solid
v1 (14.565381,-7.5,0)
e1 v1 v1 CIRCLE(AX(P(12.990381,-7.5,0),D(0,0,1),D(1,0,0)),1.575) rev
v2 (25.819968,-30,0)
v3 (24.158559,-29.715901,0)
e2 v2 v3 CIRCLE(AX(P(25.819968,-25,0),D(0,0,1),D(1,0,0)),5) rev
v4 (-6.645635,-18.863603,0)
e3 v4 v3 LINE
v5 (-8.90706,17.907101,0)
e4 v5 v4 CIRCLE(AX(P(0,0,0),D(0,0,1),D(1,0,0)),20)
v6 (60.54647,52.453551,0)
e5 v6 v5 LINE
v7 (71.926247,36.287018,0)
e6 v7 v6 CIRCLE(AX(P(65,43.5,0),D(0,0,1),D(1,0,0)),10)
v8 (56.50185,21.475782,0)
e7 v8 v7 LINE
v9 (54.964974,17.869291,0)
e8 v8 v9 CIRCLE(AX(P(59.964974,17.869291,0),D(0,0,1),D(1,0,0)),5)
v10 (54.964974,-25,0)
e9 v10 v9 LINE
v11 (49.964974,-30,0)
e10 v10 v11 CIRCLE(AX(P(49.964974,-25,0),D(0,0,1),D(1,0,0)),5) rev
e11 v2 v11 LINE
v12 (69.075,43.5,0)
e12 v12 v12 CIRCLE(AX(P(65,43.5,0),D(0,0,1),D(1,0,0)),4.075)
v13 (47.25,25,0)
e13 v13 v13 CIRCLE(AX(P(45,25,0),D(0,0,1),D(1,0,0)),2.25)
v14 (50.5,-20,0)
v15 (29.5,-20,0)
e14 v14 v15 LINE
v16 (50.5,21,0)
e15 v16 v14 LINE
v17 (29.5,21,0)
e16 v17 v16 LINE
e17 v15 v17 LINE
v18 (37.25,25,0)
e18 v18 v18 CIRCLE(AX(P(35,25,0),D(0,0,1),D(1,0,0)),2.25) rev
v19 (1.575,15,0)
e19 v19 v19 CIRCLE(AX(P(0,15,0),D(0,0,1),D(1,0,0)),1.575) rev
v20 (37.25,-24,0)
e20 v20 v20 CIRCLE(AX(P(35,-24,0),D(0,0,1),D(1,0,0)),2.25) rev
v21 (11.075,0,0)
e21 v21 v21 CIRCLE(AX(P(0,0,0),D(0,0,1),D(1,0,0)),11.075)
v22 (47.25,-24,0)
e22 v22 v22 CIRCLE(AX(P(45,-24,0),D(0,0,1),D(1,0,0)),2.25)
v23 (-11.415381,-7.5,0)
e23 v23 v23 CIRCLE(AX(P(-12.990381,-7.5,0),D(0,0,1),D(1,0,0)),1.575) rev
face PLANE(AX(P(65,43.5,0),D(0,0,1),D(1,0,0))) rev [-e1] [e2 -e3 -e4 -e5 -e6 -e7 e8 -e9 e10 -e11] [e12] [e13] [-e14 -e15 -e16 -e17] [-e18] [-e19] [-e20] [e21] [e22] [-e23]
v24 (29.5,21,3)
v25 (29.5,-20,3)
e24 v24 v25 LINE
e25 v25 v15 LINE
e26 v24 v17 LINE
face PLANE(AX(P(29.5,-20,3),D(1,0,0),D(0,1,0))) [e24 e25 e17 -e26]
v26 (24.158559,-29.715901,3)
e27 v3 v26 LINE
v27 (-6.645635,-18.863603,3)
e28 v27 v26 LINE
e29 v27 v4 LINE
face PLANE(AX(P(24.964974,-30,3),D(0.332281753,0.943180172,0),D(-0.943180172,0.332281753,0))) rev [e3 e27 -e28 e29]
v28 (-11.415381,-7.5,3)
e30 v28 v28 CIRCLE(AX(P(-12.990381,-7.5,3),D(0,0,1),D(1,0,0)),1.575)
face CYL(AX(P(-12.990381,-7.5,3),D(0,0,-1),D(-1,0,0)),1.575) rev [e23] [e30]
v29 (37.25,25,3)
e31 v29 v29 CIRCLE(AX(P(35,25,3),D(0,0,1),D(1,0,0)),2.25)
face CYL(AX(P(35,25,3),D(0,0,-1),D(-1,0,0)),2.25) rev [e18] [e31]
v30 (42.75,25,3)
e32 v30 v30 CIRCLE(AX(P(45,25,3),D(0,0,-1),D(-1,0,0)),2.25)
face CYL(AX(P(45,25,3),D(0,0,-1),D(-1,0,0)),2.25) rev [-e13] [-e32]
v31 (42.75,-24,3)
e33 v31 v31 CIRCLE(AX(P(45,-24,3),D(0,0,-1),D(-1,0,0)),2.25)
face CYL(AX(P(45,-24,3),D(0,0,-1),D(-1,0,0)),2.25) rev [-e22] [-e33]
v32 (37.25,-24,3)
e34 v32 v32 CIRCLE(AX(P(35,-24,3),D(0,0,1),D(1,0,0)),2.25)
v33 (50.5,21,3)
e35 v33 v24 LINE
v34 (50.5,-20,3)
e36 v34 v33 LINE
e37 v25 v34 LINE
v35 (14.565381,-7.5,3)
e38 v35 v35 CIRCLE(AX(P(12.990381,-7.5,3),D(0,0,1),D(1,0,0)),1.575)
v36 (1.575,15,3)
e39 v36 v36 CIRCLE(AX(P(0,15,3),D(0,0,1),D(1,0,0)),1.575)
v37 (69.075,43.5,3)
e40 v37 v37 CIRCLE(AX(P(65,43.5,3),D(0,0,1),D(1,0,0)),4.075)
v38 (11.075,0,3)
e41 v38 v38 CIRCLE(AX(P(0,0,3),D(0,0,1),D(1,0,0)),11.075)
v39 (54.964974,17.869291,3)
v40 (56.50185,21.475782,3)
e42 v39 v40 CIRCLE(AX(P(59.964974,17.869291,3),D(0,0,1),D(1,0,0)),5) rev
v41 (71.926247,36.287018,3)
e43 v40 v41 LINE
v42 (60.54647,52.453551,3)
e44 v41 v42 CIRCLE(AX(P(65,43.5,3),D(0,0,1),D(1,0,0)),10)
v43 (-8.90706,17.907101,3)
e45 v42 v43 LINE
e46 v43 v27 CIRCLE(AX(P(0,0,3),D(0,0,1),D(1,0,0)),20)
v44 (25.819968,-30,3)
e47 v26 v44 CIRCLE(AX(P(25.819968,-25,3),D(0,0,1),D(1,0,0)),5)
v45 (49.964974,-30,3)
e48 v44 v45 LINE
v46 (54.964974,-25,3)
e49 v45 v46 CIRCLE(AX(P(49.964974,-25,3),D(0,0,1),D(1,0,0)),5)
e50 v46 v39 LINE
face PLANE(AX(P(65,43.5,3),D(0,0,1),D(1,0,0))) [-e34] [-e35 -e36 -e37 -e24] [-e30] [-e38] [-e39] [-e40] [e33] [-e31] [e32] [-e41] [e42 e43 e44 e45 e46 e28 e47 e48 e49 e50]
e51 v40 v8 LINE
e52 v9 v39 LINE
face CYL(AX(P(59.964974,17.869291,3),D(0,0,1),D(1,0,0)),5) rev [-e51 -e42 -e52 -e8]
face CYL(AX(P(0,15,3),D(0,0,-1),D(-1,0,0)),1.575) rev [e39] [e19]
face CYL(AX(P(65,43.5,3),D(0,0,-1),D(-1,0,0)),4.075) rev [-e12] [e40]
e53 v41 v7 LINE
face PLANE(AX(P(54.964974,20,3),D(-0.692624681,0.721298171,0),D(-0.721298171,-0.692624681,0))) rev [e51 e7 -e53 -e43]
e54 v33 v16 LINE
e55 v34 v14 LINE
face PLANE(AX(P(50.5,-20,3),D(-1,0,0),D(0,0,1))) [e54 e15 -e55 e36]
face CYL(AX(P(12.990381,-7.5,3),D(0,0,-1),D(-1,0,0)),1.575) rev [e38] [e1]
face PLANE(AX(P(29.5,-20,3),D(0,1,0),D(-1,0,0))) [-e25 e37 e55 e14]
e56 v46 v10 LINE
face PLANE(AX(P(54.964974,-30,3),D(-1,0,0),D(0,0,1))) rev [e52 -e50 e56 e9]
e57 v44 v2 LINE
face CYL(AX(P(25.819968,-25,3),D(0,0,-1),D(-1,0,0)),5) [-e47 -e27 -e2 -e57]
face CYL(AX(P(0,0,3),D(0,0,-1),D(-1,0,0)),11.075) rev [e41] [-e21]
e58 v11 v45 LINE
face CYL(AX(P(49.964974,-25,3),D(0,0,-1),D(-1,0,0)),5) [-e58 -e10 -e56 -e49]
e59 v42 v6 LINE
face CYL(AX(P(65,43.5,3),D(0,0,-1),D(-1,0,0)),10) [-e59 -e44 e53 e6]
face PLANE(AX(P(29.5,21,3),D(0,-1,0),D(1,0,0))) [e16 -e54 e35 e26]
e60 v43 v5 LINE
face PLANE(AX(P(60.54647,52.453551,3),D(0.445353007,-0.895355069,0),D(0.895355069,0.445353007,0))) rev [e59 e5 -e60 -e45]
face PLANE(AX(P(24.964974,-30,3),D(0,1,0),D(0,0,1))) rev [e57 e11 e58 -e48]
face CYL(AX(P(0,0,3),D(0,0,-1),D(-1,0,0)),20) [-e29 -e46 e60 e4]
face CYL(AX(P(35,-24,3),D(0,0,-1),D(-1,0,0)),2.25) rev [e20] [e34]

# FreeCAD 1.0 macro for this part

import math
import FreeCAD as App
import Part
import Sketcher
from FreeCAD import Vector


def edges_at(feature, points):
    """Names of the edges that pass closest to the given points."""
    edges = feature.Shape.Edges
    near = lambda p: min(range(len(edges)), key=lambda i: edges[i].distToShape(Part.Vertex(*p))[0])
    return sorted({f"Edge{near(p) + 1}" for p in points})

doc = App.newDocument("Part")
body = doc.addObject("PartDesign::Body", "Body")

sketch1 = body.newObject("Sketcher::SketchObject", "Sketch")
sketch1.AttachmentSupport = (doc.getObject("XY_Plane"), [""])
sketch1.MapMode = "FlatFace"
sketch1.addGeometry(Part.LineSegment(Vector(-6.645635, -18.863603, 0), Vector(24.964974, -30, 0)), False)
sketch1.addGeometry(Part.LineSegment(Vector(24.964974, -30, 0), Vector(54.964974, -30, 0)), False)
sketch1.addGeometry(Part.LineSegment(Vector(54.964974, -30, 0), Vector(54.964974, 20, 0)), False)
sketch1.addGeometry(Part.LineSegment(Vector(54.964974, 20, 0), Vector(71.926247, 36.287018, 0)), False)
sketch1.addGeometry(Part.ArcOfCircle(Part.Circle(Vector(65, 43.5, 0), Vector(0, 0, 1), 10), math.radians(-46.161764), math.radians(116.445926)), False)
sketch1.addGeometry(Part.LineSegment(Vector(60.54647, 52.453551, 0), Vector(-8.90706, 17.907101, 0)), False)
sketch1.addGeometry(Part.ArcOfCircle(Part.Circle(Vector(0, 0, 0), Vector(0, 0, 1), 20), math.radians(116.445926), math.radians(250.592673)), False)
sketch1.addGeometry(Part.Circle(Vector(0, 0, 0), Vector(0, 0, 1), 11.075), False)
sketch1.addGeometry(Part.Circle(Vector(65, 43.5, 0), Vector(0, 0, 1), 4.075), False)
sketch1.addConstraint(Sketcher.Constraint("Coincident", 0, 2, 1, 1))
sketch1.addConstraint(Sketcher.Constraint("Coincident", 1, 2, 2, 1))
sketch1.addConstraint(Sketcher.Constraint("Coincident", 2, 2, 3, 1))
sketch1.addConstraint(Sketcher.Constraint("Tangent", 3, 2, 4, 1))
sketch1.addConstraint(Sketcher.Constraint("Tangent", 4, 2, 5, 1))
sketch1.addConstraint(Sketcher.Constraint("Tangent", 5, 2, 6, 1))
sketch1.addConstraint(Sketcher.Constraint("Tangent", 6, 2, 0, 1))
sketch1.addConstraint(Sketcher.Constraint("Horizontal", 1))
sketch1.addConstraint(Sketcher.Constraint("Vertical", 2))
sketch1.addConstraint(Sketcher.Constraint("Coincident", 6, 3, -1, 1))
sketch1.addConstraint(Sketcher.Constraint("Coincident", 7, 3, -1, 1))
sketch1.addConstraint(Sketcher.Constraint("Coincident", 8, 3, 4, 3))
sketch1.addConstraint(Sketcher.Constraint("Radius", 4, 10.0))
sketch1.addConstraint(Sketcher.Constraint("Radius", 6, 20.0))
sketch1.addConstraint(Sketcher.Constraint("Diameter", 7, 22.15))
sketch1.addConstraint(Sketcher.Constraint("Diameter", 8, 8.15))
sketch1.addConstraint(Sketcher.Constraint("DistanceX", 1, 1, 1, 2, 30.0))
sketch1.addConstraint(Sketcher.Constraint("DistanceY", 2, 1, 2, 2, 50.0))
sketch1.addConstraint(Sketcher.Constraint("DistanceX", -1, 1, 4, 3, 65.0))
sketch1.addConstraint(Sketcher.Constraint("DistanceY", 0, 2, -1, 1, 30.0))
sketch1.addConstraint(Sketcher.Constraint("DistanceY", -1, 1, 4, 3, 43.5))
sketch1.addConstraint(Sketcher.Constraint("Distance", 0, 33.514921))
pad1 = body.newObject("PartDesign::Pad", "Pad")
pad1.Profile = sketch1
pad1.Length = 3

sketch2 = body.newObject("Sketcher::SketchObject", "Sketch001")
sketch2.AttachmentSupport = (doc.getObject("XY_Plane"), [""])
sketch2.MapMode = "FlatFace"
sketch2.addGeometry(Part.Circle(Vector(0, 15, 0), Vector(0, 0, 1), 1.575), False)
sketch2.addGeometry(Part.Circle(Vector(12.990381, -7.5, 0), Vector(0, 0, 1), 1.575), False)
sketch2.addGeometry(Part.Circle(Vector(-12.990381, -7.5, 0), Vector(0, 0, 1), 1.575), False)
sketch2.addConstraint(Sketcher.Constraint("Equal", 0, 1))
sketch2.addConstraint(Sketcher.Constraint("Equal", 1, 2))
sketch2.addConstraint(Sketcher.Constraint("Symmetric", 1, 3, 2, 3, -2))
sketch2.addConstraint(Sketcher.Constraint("PointOnObject", 0, 3, -2))
sketch2.addConstraint(Sketcher.Constraint("Diameter", 0, 3.15))
sketch2.addConstraint(Sketcher.Constraint("DistanceY", -1, 1, 0, 3, 15.0))
sketch2.addConstraint(Sketcher.Constraint("DistanceY", 1, 3, -1, 1, 7.5))
sketch2.addConstraint(Sketcher.Constraint("DistanceX", -1, 1, 1, 3, 12.990381))
pocket1 = body.newObject("PartDesign::Pocket", "Pocket")
pocket1.Profile = sketch2
pocket1.Type = "ThroughAll"
pocket1.Midplane = True

sketch3 = body.newObject("Sketcher::SketchObject", "Sketch002")
sketch3.AttachmentSupport = (doc.getObject("XY_Plane"), [""])
sketch3.MapMode = "FlatFace"
sketch3.addGeometry(Part.Circle(Vector(35, -24, 0), Vector(0, 0, 1), 2.25), False)
sketch3.addGeometry(Part.Circle(Vector(35, 25, 0), Vector(0, 0, 1), 2.25), False)
sketch3.addGeometry(Part.Circle(Vector(45, 25, 0), Vector(0, 0, 1), 2.25), False)
sketch3.addGeometry(Part.Circle(Vector(45, -24, 0), Vector(0, 0, 1), 2.25), False)
sketch3.addConstraint(Sketcher.Constraint("Equal", 0, 1))
sketch3.addConstraint(Sketcher.Constraint("Equal", 1, 2))
sketch3.addConstraint(Sketcher.Constraint("Equal", 2, 3))
sketch3.addConstraint(Sketcher.Constraint("Horizontal", 1, 3, 2, 3))
sketch3.addConstraint(Sketcher.Constraint("Horizontal", 0, 3, 3, 3))
sketch3.addConstraint(Sketcher.Constraint("Vertical", 0, 3, 1, 3))
sketch3.addConstraint(Sketcher.Constraint("Vertical", 2, 3, 3, 3))
sketch3.addConstraint(Sketcher.Constraint("Diameter", 0, 4.5))
sketch3.addConstraint(Sketcher.Constraint("DistanceX", -1, 1, 0, 3, 35.0))
sketch3.addConstraint(Sketcher.Constraint("DistanceY", 0, 3, -1, 1, 24.0))
sketch3.addConstraint(Sketcher.Constraint("DistanceY", -1, 1, 1, 3, 25.0))
sketch3.addConstraint(Sketcher.Constraint("DistanceX", -1, 1, 2, 3, 45.0))
pocket2 = body.newObject("PartDesign::Pocket", "Pocket001")
pocket2.Profile = sketch3
pocket2.Type = "ThroughAll"
pocket2.Midplane = True
doc.recompute()

fillet = body.newObject("PartDesign::Fillet", "Fillet")
fillet.Base = (pocket2, edges_at(pocket2, [(54.965, -30, 1.5), (24.965, -30, 1.5), (54.965, 20, 1.5)]))
fillet.Radius = 5

sketch4 = body.newObject("Sketcher::SketchObject", "Sketch003")
sketch4.AttachmentSupport = (doc.getObject("XY_Plane"), [""])
sketch4.MapMode = "FlatFace"
sketch4.addGeometry(Part.LineSegment(Vector(29.5, 21, 0), Vector(29.5, -20, 0)), False)
sketch4.addGeometry(Part.LineSegment(Vector(29.5, -20, 0), Vector(50.5, -20, 0)), False)
sketch4.addGeometry(Part.LineSegment(Vector(50.5, -20, 0), Vector(50.5, 21, 0)), False)
sketch4.addGeometry(Part.LineSegment(Vector(50.5, 21, 0), Vector(29.5, 21, 0)), False)
sketch4.addConstraint(Sketcher.Constraint("Coincident", 0, 2, 1, 1))
sketch4.addConstraint(Sketcher.Constraint("Coincident", 1, 2, 2, 1))
sketch4.addConstraint(Sketcher.Constraint("Coincident", 2, 2, 3, 1))
sketch4.addConstraint(Sketcher.Constraint("Coincident", 3, 2, 0, 1))
sketch4.addConstraint(Sketcher.Constraint("Vertical", 0))
sketch4.addConstraint(Sketcher.Constraint("Horizontal", 1))
sketch4.addConstraint(Sketcher.Constraint("Vertical", 2))
sketch4.addConstraint(Sketcher.Constraint("Horizontal", 3))
sketch4.addConstraint(Sketcher.Constraint("DistanceX", 1, 1, 1, 2, 21.0))
sketch4.addConstraint(Sketcher.Constraint("DistanceY", 0, 2, 0, 1, 41.0))
sketch4.addConstraint(Sketcher.Constraint("DistanceY", 0, 2, -1, 1, 20.0))
sketch4.addConstraint(Sketcher.Constraint("DistanceX", -1, 1, 0, 2, 29.5))
pocket3 = body.newObject("PartDesign::Pocket", "Pocket002")
pocket3.Profile = sketch4
pocket3.Type = "ThroughAll"
pocket3.Midplane = True

doc.recompute()
